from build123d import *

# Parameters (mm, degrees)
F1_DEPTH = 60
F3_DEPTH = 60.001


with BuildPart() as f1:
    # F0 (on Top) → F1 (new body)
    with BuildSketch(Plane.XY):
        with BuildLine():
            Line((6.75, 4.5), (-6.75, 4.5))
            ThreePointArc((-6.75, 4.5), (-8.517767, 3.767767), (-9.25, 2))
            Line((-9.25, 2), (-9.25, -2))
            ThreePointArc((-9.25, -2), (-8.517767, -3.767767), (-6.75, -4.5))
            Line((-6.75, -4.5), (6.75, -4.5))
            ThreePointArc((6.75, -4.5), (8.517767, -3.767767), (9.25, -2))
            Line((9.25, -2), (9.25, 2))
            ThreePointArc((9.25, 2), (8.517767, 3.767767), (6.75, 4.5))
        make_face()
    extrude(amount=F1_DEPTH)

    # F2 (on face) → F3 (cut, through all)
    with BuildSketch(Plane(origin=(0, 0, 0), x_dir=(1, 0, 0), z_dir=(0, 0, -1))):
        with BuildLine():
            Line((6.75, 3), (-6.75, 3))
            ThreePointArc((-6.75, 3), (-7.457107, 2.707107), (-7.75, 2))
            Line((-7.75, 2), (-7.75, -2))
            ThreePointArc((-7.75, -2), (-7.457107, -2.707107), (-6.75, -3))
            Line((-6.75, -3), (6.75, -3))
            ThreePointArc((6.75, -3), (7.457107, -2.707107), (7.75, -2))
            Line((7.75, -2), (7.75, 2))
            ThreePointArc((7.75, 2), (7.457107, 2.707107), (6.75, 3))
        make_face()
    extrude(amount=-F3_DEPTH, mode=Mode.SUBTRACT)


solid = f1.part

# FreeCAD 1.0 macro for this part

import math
import FreeCAD as App
import Part
import Sketcher

V = App.Vector
Q = App.Units.Quantity

doc = App.newDocument("Part")
body = doc.addObject("PartDesign::Body", "Body")

# Sketch on XY plane
sketch1 = doc.addObject("Sketcher::SketchObject", "Sketch")
body.addObject(sketch1)
sketch1.AttachmentSupport = (doc.XY_Plane, [""])
sketch1.MapMode = "FlatFace"
sketch1.addGeometry(Part.LineSegment(V(6.8, 4.5, 0), V(-6.8, 4.5, 0)), False)
sketch1.addGeometry(Part.ArcOfCircle(Part.Circle(V(-6.8, 2, 0), V(0, 0, 1), 2.5), math.radians(90), math.radians(180)), False)
sketch1.addGeometry(Part.LineSegment(V(-9.2, 2, 0), V(-9.2, -2, 0)), False)
sketch1.addGeometry(Part.ArcOfCircle(Part.Circle(V(-6.8, -2, 0), V(0, 0, 1), 2.5), math.radians(180), math.radians(270)), False)
sketch1.addGeometry(Part.LineSegment(V(-6.8, -4.5, 0), V(6.8, -4.5, 0)), False)
sketch1.addGeometry(Part.ArcOfCircle(Part.Circle(V(6.8, -2, 0), V(0, 0, 1), 2.5), math.radians(-90), math.radians(0)), False)
sketch1.addGeometry(Part.LineSegment(V(9.2, -2, 0), V(9.2, 2, 0)), False)
sketch1.addGeometry(Part.ArcOfCircle(Part.Circle(V(6.8, 2, 0), V(0, 0, 1), 2.5), math.radians(0), math.radians(90)), False)
sketch1.addConstraint(Sketcher.Constraint("Tangent", 0, 2, 1, 1))
sketch1.addConstraint(Sketcher.Constraint("Tangent", 1, 2, 2, 1))
sketch1.addConstraint(Sketcher.Constraint("Tangent", 2, 2, 3, 1))
sketch1.addConstraint(Sketcher.Constraint("Tangent", 3, 2, 4, 1))
sketch1.addConstraint(Sketcher.Constraint("Tangent", 4, 2, 5, 1))
sketch1.addConstraint(Sketcher.Constraint("Tangent", 5, 2, 6, 1))
sketch1.addConstraint(Sketcher.Constraint("Tangent", 6, 2, 7, 1))
sketch1.addConstraint(Sketcher.Constraint("Tangent", 7, 2, 0, 1))
sketch1.addConstraint(Sketcher.Constraint("Horizontal", 0))
sketch1.addConstraint(Sketcher.Constraint("Vertical", 2))
sketch1.addConstraint(Sketcher.Constraint("Horizontal", 4))
sketch1.addConstraint(Sketcher.Constraint("Vertical", 6))
sketch1.addConstraint(Sketcher.Constraint("Equal", 1, 3))
sketch1.addConstraint(Sketcher.Constraint("Equal", 3, 5))
sketch1.addConstraint(Sketcher.Constraint("Equal", 5, 7))
sketch1.addConstraint(Sketcher.Constraint("Symmetric", 1, 3, 5, 3, -1, 1))
sketch1.addConstraint(Sketcher.Constraint("Radius", 1, Q("2.5 mm")))
sketch1.addConstraint(Sketcher.Constraint("DistanceY", 2, 2, 2, 1, Q("4 mm")))
sketch1.addConstraint(Sketcher.Constraint("DistanceX", 0, 2, 0, 1, Q("13.5 mm")))
pad1 = doc.addObject("PartDesign::Pad", "Pad")
body.addObject(pad1)
pad1.Profile = sketch1
pad1.Length = 60

# Sketch on XY plane
sketch2 = doc.addObject("Sketcher::SketchObject", "Sketch001")
body.addObject(sketch2)
sketch2.AttachmentSupport = (doc.XY_Plane, [""])
sketch2.MapMode = "FlatFace"
sketch2.addGeometry(Part.LineSegment(V(6.8, -3, 0), V(-6.8, -3, 0)), False)
sketch2.addGeometry(Part.ArcOfCircle(Part.Circle(V(-6.8, -2, 0), V(0, 0, 1), 1), math.radians(180), math.radians(270)), False)
sketch2.addGeometry(Part.LineSegment(V(-7.8, -2, 0), V(-7.8, 2, 0)), False)
sketch2.addGeometry(Part.ArcOfCircle(Part.Circle(V(-6.8, 2, 0), V(0, 0, 1), 1), math.radians(90), math.radians(180)), False)
sketch2.addGeometry(Part.LineSegment(V(-6.8, 3, 0), V(6.8, 3, 0)), False)
sketch2.addGeometry(Part.ArcOfCircle(Part.Circle(V(6.8, 2, 0), V(0, 0, 1), 1), math.radians(0), math.radians(90)), False)
sketch2.addGeometry(Part.LineSegment(V(7.8, 2, 0), V(7.8, -2, 0)), False)
sketch2.addGeometry(Part.ArcOfCircle(Part.Circle(V(6.8, -2, 0), V(0, 0, 1), 1), math.radians(-90), math.radians(0)), False)
sketch2.addConstraint(Sketcher.Constraint("Tangent", 0, 2, 1, 2))
sketch2.addConstraint(Sketcher.Constraint("Tangent", 1, 1, 2, 1))
sketch2.addConstraint(Sketcher.Constraint("Tangent", 2, 2, 3, 2))
sketch2.addConstraint(Sketcher.Constraint("Tangent", 3, 1, 4, 1))
sketch2.addConstraint(Sketcher.Constraint("Tangent", 4, 2, 5, 2))
sketch2.addConstraint(Sketcher.Constraint("Tangent", 5, 1, 6, 1))
sketch2.addConstraint(Sketcher.Constraint("Tangent", 6, 2, 7, 2))
sketch2.addConstraint(Sketcher.Constraint("Tangent", 7, 1, 0, 1))
sketch2.addConstraint(Sketcher.Constraint("Horizontal", 0))
sketch2.addConstraint(Sketcher.Constraint("Vertical", 2))
sketch2.addConstraint(Sketcher.Constraint("Horizontal", 4))
sketch2.addConstraint(Sketcher.Constraint("Vertical", 6))
sketch2.addConstraint(Sketcher.Constraint("Equal", 1, 3))
sketch2.addConstraint(Sketcher.Constraint("Equal", 3, 5))
sketch2.addConstraint(Sketcher.Constraint("Equal", 5, 7))
sketch2.addConstraint(Sketcher.Constraint("Symmetric", 1, 3, 5, 3, -1, 1))
sketch2.addConstraint(Sketcher.Constraint("Radius", 1, Q("0.999999 mm")))
sketch2.addConstraint(Sketcher.Constraint("DistanceY", 2, 1, 2, 2, Q("4 mm")))
sketch2.addConstraint(Sketcher.Constraint("DistanceX", 0, 2, 0, 1, Q("13.5 mm")))
pocket1 = doc.addObject("PartDesign::Pocket", "Pocket")
body.addObject(pocket1)
pocket1.Profile = sketch2
pocket1.Type = "ThroughAll"
pocket1.Reversed = True

doc.recompute()
